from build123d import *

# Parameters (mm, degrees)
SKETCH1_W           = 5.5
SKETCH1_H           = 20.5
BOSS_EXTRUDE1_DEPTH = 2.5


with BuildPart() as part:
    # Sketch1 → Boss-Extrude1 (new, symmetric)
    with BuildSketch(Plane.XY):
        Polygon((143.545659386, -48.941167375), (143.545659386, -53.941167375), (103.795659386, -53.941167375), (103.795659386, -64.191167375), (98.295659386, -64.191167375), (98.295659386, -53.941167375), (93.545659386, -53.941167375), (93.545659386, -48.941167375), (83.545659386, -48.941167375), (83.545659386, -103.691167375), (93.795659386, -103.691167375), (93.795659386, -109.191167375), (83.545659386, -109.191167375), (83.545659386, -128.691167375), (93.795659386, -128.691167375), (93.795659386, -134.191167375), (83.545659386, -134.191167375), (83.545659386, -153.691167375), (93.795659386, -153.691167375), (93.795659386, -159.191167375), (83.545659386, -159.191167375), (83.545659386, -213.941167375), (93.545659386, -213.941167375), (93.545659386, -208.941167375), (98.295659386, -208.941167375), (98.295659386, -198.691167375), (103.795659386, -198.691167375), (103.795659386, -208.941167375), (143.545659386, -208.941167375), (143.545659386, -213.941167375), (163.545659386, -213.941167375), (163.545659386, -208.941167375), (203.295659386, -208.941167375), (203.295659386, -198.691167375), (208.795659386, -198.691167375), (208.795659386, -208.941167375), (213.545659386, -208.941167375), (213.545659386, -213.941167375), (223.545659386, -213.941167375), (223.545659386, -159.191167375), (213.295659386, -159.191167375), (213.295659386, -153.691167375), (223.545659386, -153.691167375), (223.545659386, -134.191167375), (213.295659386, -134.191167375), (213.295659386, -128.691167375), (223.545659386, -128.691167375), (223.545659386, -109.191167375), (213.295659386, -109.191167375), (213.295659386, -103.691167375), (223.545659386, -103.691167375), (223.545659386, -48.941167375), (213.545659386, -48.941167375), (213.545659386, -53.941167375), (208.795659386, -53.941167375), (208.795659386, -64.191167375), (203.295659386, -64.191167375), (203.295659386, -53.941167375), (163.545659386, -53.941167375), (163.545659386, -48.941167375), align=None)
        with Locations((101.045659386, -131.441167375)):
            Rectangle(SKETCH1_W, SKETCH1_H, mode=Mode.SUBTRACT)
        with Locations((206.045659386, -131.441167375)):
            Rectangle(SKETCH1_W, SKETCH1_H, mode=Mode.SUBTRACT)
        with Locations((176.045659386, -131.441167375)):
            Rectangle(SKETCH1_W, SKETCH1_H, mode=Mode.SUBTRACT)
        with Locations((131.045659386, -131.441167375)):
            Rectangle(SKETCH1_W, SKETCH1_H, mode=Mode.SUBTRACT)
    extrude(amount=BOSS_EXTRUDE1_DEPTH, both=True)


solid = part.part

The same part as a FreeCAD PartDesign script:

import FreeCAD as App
import Part
import Sketcher

V = App.Vector


def add_polygon(sketch, points):
    """Adds a closed chain of lines whose ends are joined by coincident constraints."""
    first, n = sketch.GeometryCount, len(points)
    for a, b in zip(points, points[1:] + points[:1]):
        sketch.addGeometry(Part.LineSegment(App.Vector(*a, 0), App.Vector(*b, 0)), False)
    for i in range(n):
        sketch.addConstraint(Sketcher.Constraint("Coincident", first + i, 2, first + (i + 1) % n, 1))

doc = App.newDocument("Part")
params = doc.addObject("Spreadsheet::Sheet", "Params")
for row, (alias, value) in enumerate([
    ("sketch1_width", "10 mm"),
    ("sketch1_width2", "20 mm"),
    ("sketch1_height", "5 mm"),
    ("sketch1_width3", "5.5 mm"),
    ("sketch1_height2", "19.5 mm"),
    ("pad1_length", "5 mm"),
], start=1):
    params.set(f"A{row}", alias)
    params.set(f"B{row}", "=" + value)
    params.setAlias(f"B{row}", alias)

body = doc.addObject("PartDesign::Body", "Body")

sketch1 = body.newObject("Sketcher::SketchObject", "Sketch")
sketch1.AttachmentSupport = (doc.getObject("XY_Plane"), [""])
sketch1.MapMode = "FlatFace"
add_polygon(sketch1, [(143.5, -48.9), (143.5, -53.9), (103.8, -53.9), (103.8, -64.2), (98.3, -64.2), (98.3, -53.9), (93.5, -53.9), (93.5, -48.9), (83.5, -48.9), (83.5, -103.7), (93.8, -103.7), (93.8, -109.2), (83.5, -109.2), (83.5, -128.7), (93.8, -128.7), (93.8, -134.2), (83.5, -134.2), (83.5, -153.7), (93.8, -153.7), (93.8, -159.2), (83.5, -159.2), (83.5, -213.9), (93.5, -213.9), (93.5, -208.9), (98.3, -208.9), (98.3, -198.7), (103.8, -198.7), (103.8, -208.9), (143.5, -208.9), (143.5, -213.9), (163.5, -213.9), (163.5, -208.9), (203.3, -208.9), (203.3, -198.7), (208.8, -198.7), (208.8, -208.9), (213.5, -208.9), (213.5, -213.9), (223.5, -213.9), (223.5, -159.2), (213.3, -159.2), (213.3, -153.7), (223.5, -153.7), (223.5, -134.2), (213.3, -134.2), (213.3, -128.7), (223.5, -128.7), (223.5, -109.2), (213.3, -109.2), (213.3, -103.7), (223.5, -103.7), (223.5, -48.9), (213.5, -48.9), (213.5, -53.9), (208.8, -53.9), (208.8, -64.2), (203.3, -64.2), (203.3, -53.9), (163.5, -53.9), (163.5, -48.9)])
add_polygon(sketch1, [(103.8, -141.7), (98.3, -141.7), (98.3, -121.2), (103.8, -121.2)])
add_polygon(sketch1, [(133.8, -141.7), (128.3, -141.7), (128.3, -121.2), (133.8, -121.2)])
add_polygon(sketch1, [(178.8, -141.7), (173.3, -141.7), (173.3, -121.2), (178.8, -121.2)])
add_polygon(sketch1, [(208.8, -141.7), (203.3, -141.7), (203.3, -121.2), (208.8, -121.2)])
sketch1.addConstraint(Sketcher.Constraint("Vertical", 0))
sketch1.addConstraint(Sketcher.Constraint("Horizontal", 1))
sketch1.addConstraint(Sketcher.Constraint("Vertical", 2))
sketch1.addConstraint(Sketcher.Constraint("Horizontal", 3))
sketch1.addConstraint(Sketcher.Constraint("Vertical", 4))
sketch1.addConstraint(Sketcher.Constraint("Horizontal", 5))
sketch1.addConstraint(Sketcher.Constraint("Vertical", 6))
sketch1.addConstraint(Sketcher.Constraint("Horizontal", 7))
sketch1.addConstraint(Sketcher.Constraint("Vertical", 8))
sketch1.addConstraint(Sketcher.Constraint("Horizontal", 9))
sketch1.addConstraint(Sketcher.Constraint("Vertical", 10))
sketch1.addConstraint(Sketcher.Constraint("Horizontal", 11))
sketch1.addConstraint(Sketcher.Constraint("Vertical", 12))
sketch1.addConstraint(Sketcher.Constraint("Horizontal", 13))
sketch1.addConstraint(Sketcher.Constraint("Vertical", 14))
sketch1.addConstraint(Sketcher.Constraint("Horizontal", 15))
sketch1.addConstraint(Sketcher.Constraint("Vertical", 16))
sketch1.addConstraint(Sketcher.Constraint("Horizontal", 17))
sketch1.addConstraint(Sketcher.Constraint("Vertical", 18))
sketch1.addConstraint(Sketcher.Constraint("Horizontal", 19))
sketch1.addConstraint(Sketcher.Constraint("Vertical", 20))
sketch1.addConstraint(Sketcher.Constraint("Horizontal", 21))
sketch1.addConstraint(Sketcher.Constraint("Vertical", 22))
sketch1.addConstraint(Sketcher.Constraint("Horizontal", 23))
sketch1.addConstraint(Sketcher.Constraint("Vertical", 24))
sketch1.addConstraint(Sketcher.Constraint("Horizontal", 25))
sketch1.addConstraint(Sketcher.Constraint("Vertical", 26))
sketch1.addConstraint(Sketcher.Constraint("Horizontal", 27))
sketch1.addConstraint(Sketcher.Constraint("Vertical", 28))
sketch1.addConstraint(Sketcher.Constraint("Horizontal", 29))
sketch1.addConstraint(Sketcher.Constraint("Vertical", 30))
sketch1.addConstraint(Sketcher.Constraint("Horizontal", 31))
sketch1.addConstraint(Sketcher.Constraint("Vertical", 32))
sketch1.addConstraint(Sketcher.Constraint("Horizontal", 33))
sketch1.addConstraint(Sketcher.Constraint("Vertical", 34))
sketch1.addConstraint(Sketcher.Constraint("Horizontal", 35))
sketch1.addConstraint(Sketcher.Constraint("Vertical", 36))
sketch1.addConstraint(Sketcher.Constraint("Horizontal", 37))
sketch1.addConstraint(Sketcher.Constraint("Vertical", 38))
sketch1.addConstraint(Sketcher.Constraint("Horizontal", 39))
sketch1.addConstraint(Sketcher.Constraint("Vertical", 40))
sketch1.addConstraint(Sketcher.Constraint("Horizontal", 41))
sketch1.addConstraint(Sketcher.Constraint("Vertical", 42))
sketch1.addConstraint(Sketcher.Constraint("Horizontal", 43))
sketch1.addConstraint(Sketcher.Constraint("Vertical", 44))
sketch1.addConstraint(Sketcher.Constraint("Horizontal", 45))
sketch1.addConstraint(Sketcher.Constraint("Vertical", 46))
sketch1.addConstraint(Sketcher.Constraint("Horizontal", 47))
sketch1.addConstraint(Sketcher.Constraint("Vertical", 48))
sketch1.addConstraint(Sketcher.Constraint("Horizontal", 49))
sketch1.addConstraint(Sketcher.Constraint("Vertical", 50))
sketch1.addConstraint(Sketcher.Constraint("Horizontal", 51))
sketch1.addConstraint(Sketcher.Constraint("Vertical", 52))
sketch1.addConstraint(Sketcher.Constraint("Horizontal", 53))
sketch1.addConstraint(Sketcher.Constraint("Vertical", 54))
sketch1.addConstraint(Sketcher.Constraint("Horizontal", 55))
sketch1.addConstraint(Sketcher.Constraint("Vertical", 56))
sketch1.addConstraint(Sketcher.Constraint("Horizontal", 57))
sketch1.addConstraint(Sketcher.Constraint("Vertical", 58))
sketch1.addConstraint(Sketcher.Constraint("Horizontal", 59))
sketch1.addConstraint(Sketcher.Constraint("Horizontal", 60))
sketch1.addConstraint(Sketcher.Constraint("Vertical", 61))
sketch1.addConstraint(Sketcher.Constraint("Horizontal", 62))
sketch1.addConstraint(Sketcher.Constraint("Vertical", 63))
sketch1.addConstraint(Sketcher.Constraint("Horizontal", 64))
sketch1.addConstraint(Sketcher.Constraint("Vertical", 65))
sketch1.addConstraint(Sketcher.Constraint("Horizontal", 66))
sketch1.addConstraint(Sketcher.Constraint("Vertical", 67))
sketch1.addConstraint(Sketcher.Constraint("Horizontal", 68))
sketch1.addConstraint(Sketcher.Constraint("Vertical", 69))
sketch1.addConstraint(Sketcher.Constraint("Horizontal", 70))
sketch1.addConstraint(Sketcher.Constraint("Vertical", 71))
sketch1.addConstraint(Sketcher.Constraint("Horizontal", 72))
sketch1.addConstraint(Sketcher.Constraint("Vertical", 73))
sketch1.addConstraint(Sketcher.Constraint("Horizontal", 74))
sketch1.addConstraint(Sketcher.Constraint("Vertical", 75))
sketch1.addConstraint(Sketcher.Constraint("Horizontal", 1, 2, 4, 2))
sketch1.addConstraint(Sketcher.Constraint("Horizontal", 23, 2, 26, 2))
sketch1.addConstraint(Sketcher.Constraint("Horizontal", 21, 2, 28, 2))
sketch1.addConstraint(Sketcher.Constraint("Horizontal", 27, 2, 30, 2))
sketch1.addConstraint(Sketcher.Constraint("Horizontal", 25, 2, 32, 2))
sketch1.addConstraint(Sketcher.Constraint("Horizontal", 31, 2, 34, 2))
sketch1.addConstraint(Sketcher.Constraint("Horizontal", 29, 2, 36, 2))
sketch1.addConstraint(Sketcher.Constraint("Horizontal", 19, 2, 38, 2))
sketch1.addConstraint(Sketcher.Constraint("Horizontal", 17, 2, 40, 2))
sketch1.addConstraint(Sketcher.Constraint("Horizontal", 15, 2, 42, 2))
sketch1.addConstraint(Sketcher.Constraint("Horizontal", 13, 2, 44, 2))
sketch1.addConstraint(Sketcher.Constraint("Horizontal", 11, 2, 46, 2))
sketch1.addConstraint(Sketcher.Constraint("Horizontal", 9, 2, 48, 2))
sketch1.addConstraint(Sketcher.Constraint("Horizontal", 7, 2, 50, 2))
sketch1.addConstraint(Sketcher.Constraint("Horizontal", 5, 2, 52, 2))
sketch1.addConstraint(Sketcher.Constraint("Horizontal", 3, 2, 54, 2))
sketch1.addConstraint(Sketcher.Constraint("Horizontal", 53, 2, 56, 2))
sketch1.addConstraint(Sketcher.Constraint("Horizontal", 51, 2, 58, 2))
sketch1.addConstraint(Sketcher.Constraint("Horizontal", 63, 2, 64, 2))
sketch1.addConstraint(Sketcher.Constraint("Horizontal", 62, 2, 65, 2))
sketch1.addConstraint(Sketcher.Constraint("Horizontal", 67, 2, 68, 2))
sketch1.addConstraint(Sketcher.Constraint("Horizontal", 66, 2, 69, 2))
sketch1.addConstraint(Sketcher.Constraint("Horizontal", 71, 2, 72, 2))
sketch1.addConstraint(Sketcher.Constraint("Horizontal", 70, 2, 73, 2))
sketch1.addConstraint(Sketcher.Constraint("Vertical", 8, 2, 11, 2))
sketch1.addConstraint(Sketcher.Constraint("Vertical", 10, 2, 13, 2))
sketch1.addConstraint(Sketcher.Constraint("Vertical", 12, 2, 15, 2))
sketch1.addConstraint(Sketcher.Constraint("Vertical", 14, 2, 17, 2))
sketch1.addConstraint(Sketcher.Constraint("Vertical", 16, 2, 19, 2))
sketch1.addConstraint(Sketcher.Constraint("Vertical", 6, 2, 21, 2))
sketch1.addConstraint(Sketcher.Constraint("Vertical", 4, 2, 23, 2))
sketch1.addConstraint(Sketcher.Constraint("Vertical", 2, 2, 25, 2))
sketch1.addConstraint(Sketcher.Constraint("Vertical", 0, 2, 27, 2))
sketch1.addConstraint(Sketcher.Constraint("Vertical", 38, 2, 41, 2))
sketch1.addConstraint(Sketcher.Constraint("Vertical", 40, 2, 43, 2))
sketch1.addConstraint(Sketcher.Constraint("Vertical", 42, 2, 45, 2))
sketch1.addConstraint(Sketcher.Constraint("Vertical", 44, 2, 47, 2))
sketch1.addConstraint(Sketcher.Constraint("Vertical", 46, 2, 49, 2))
sketch1.addConstraint(Sketcher.Constraint("Vertical", 36, 2, 51, 2))
sketch1.addConstraint(Sketcher.Constraint("Vertical", 34, 2, 53, 2))
sketch1.addConstraint(Sketcher.Constraint("Vertical", 32, 2, 55, 2))
sketch1.addConstraint(Sketcher.Constraint("Vertical", 30, 2, 57, 2))
sketch1.addConstraint(Sketcher.Constraint("Vertical", 24, 2, 60, 2))
sketch1.addConstraint(Sketcher.Constraint("Vertical", 26, 2, 62, 2))
sketch1.addConstraint(Sketcher.Constraint("Vertical", 56, 2, 72, 2))
sketch1.addConstraint(Sketcher.Constraint("Vertical", 54, 2, 74, 2))
sketch1.addConstraint(Sketcher.Constraint("Equal", 27, 31))
sketch1.addConstraint(Sketcher.Constraint("Equal", 25, 33))
sketch1.addConstraint(Sketcher.Constraint("Equal", 23, 35))
sketch1.addConstraint(Sketcher.Constraint("Equal", 21, 37))
sketch1.addConstraint(Sketcher.Constraint("Equal", 19, 39))
sketch1.addConstraint(Sketcher.Constraint("Equal", 62, 64))
sketch1.addConstraint(Sketcher.Constraint("Equal", 66, 68))
sketch1.addConstraint(Sketcher.Constraint("Equal", 49, 2))
sketch1.addConstraint(Sketcher.Constraint("Equal", 74, 10))
sketch1.addConstraint(Sketcher.Constraint("Equal", 10, 14))
sketch1.addConstraint(Sketcher.Constraint("Equal", 12, 16))
sketch1.addConstraint(Sketcher.Constraint("Equal", 14, 18))
sketch1.addConstraint(Sketcher.Constraint("Equal", 8, 20))
sketch1.addConstraint(Sketcher.Constraint("Equal", 6, 22))
sketch1.addConstraint(Sketcher.Constraint("Equal", 4, 24))
sketch1.addConstraint(Sketcher.Constraint("DistanceX", 7, 2, 7, 1, 10.0))
sketch1.addConstraint(Sketcher.Constraint("DistanceX", 29, 1, 29, 2, 20.0))
sketch1.addConstraint(Sketcher.Constraint("DistanceY", 0, 2, 0, 1, 5.0))
sketch1.addConstraint(Sketcher.Constraint("DistanceX", 3, 2, 3, 1, 5.5))
sketch1.addConstraint(Sketcher.Constraint("DistanceY", 12, 2, 12, 1, 19.5))
sketch1.addConstraint(Sketcher.Constraint("DistanceY", 61, 1, 61, 2, 20.5))
sketch1.addConstraint(Sketcher.Constraint("DistanceX", 1, 2, 1, 1, 39.75))
sketch1.addConstraint(Sketcher.Constraint("DistanceX", 5, 2, 5, 1, 4.75))
sketch1.addConstraint(Sketcher.Constraint("DistanceX", 9, 1, 9, 2, 10.25))
sketch1.addConstraint(Sketcher.Constraint("DistanceY", 8, 2, 8, 1, 54.75))
sketch1.addConstraint(Sketcher.Constraint("DistanceX", -1, 1, 0, 2, 143.545659))
sketch1.addConstraint(Sketcher.Constraint("DistanceX", -1, 1, 64, 2, 128.295659))
sketch1.addConstraint(Sketcher.Constraint("DistanceX", -1, 1, 68, 2, 173.295659))
sketch1.addConstraint(Sketcher.Constraint("DistanceY", 0, 2, -1, 1, 53.941167))
sketch1.addConstraint(Sketcher.Constraint("DistanceY", 60, 2, -1, 1, 141.691167))
sketch1.setExpression("Constraints[213]", "Params.sketch1_width")
sketch1.setExpression("Constraints[214]", "Params.sketch1_width2")
sketch1.setExpression("Constraints[215]", "Params.sketch1_height")
sketch1.setExpression("Constraints[216]", "Params.sketch1_width3")
sketch1.setExpression("Constraints[217]", "Params.sketch1_height2")
pad1 = body.newObject("PartDesign::Pad", "Pad")
pad1.Profile = sketch1
pad1.setExpression("Length", "Params.pad1_length")
pad1.Midplane = True

doc.recompute()
